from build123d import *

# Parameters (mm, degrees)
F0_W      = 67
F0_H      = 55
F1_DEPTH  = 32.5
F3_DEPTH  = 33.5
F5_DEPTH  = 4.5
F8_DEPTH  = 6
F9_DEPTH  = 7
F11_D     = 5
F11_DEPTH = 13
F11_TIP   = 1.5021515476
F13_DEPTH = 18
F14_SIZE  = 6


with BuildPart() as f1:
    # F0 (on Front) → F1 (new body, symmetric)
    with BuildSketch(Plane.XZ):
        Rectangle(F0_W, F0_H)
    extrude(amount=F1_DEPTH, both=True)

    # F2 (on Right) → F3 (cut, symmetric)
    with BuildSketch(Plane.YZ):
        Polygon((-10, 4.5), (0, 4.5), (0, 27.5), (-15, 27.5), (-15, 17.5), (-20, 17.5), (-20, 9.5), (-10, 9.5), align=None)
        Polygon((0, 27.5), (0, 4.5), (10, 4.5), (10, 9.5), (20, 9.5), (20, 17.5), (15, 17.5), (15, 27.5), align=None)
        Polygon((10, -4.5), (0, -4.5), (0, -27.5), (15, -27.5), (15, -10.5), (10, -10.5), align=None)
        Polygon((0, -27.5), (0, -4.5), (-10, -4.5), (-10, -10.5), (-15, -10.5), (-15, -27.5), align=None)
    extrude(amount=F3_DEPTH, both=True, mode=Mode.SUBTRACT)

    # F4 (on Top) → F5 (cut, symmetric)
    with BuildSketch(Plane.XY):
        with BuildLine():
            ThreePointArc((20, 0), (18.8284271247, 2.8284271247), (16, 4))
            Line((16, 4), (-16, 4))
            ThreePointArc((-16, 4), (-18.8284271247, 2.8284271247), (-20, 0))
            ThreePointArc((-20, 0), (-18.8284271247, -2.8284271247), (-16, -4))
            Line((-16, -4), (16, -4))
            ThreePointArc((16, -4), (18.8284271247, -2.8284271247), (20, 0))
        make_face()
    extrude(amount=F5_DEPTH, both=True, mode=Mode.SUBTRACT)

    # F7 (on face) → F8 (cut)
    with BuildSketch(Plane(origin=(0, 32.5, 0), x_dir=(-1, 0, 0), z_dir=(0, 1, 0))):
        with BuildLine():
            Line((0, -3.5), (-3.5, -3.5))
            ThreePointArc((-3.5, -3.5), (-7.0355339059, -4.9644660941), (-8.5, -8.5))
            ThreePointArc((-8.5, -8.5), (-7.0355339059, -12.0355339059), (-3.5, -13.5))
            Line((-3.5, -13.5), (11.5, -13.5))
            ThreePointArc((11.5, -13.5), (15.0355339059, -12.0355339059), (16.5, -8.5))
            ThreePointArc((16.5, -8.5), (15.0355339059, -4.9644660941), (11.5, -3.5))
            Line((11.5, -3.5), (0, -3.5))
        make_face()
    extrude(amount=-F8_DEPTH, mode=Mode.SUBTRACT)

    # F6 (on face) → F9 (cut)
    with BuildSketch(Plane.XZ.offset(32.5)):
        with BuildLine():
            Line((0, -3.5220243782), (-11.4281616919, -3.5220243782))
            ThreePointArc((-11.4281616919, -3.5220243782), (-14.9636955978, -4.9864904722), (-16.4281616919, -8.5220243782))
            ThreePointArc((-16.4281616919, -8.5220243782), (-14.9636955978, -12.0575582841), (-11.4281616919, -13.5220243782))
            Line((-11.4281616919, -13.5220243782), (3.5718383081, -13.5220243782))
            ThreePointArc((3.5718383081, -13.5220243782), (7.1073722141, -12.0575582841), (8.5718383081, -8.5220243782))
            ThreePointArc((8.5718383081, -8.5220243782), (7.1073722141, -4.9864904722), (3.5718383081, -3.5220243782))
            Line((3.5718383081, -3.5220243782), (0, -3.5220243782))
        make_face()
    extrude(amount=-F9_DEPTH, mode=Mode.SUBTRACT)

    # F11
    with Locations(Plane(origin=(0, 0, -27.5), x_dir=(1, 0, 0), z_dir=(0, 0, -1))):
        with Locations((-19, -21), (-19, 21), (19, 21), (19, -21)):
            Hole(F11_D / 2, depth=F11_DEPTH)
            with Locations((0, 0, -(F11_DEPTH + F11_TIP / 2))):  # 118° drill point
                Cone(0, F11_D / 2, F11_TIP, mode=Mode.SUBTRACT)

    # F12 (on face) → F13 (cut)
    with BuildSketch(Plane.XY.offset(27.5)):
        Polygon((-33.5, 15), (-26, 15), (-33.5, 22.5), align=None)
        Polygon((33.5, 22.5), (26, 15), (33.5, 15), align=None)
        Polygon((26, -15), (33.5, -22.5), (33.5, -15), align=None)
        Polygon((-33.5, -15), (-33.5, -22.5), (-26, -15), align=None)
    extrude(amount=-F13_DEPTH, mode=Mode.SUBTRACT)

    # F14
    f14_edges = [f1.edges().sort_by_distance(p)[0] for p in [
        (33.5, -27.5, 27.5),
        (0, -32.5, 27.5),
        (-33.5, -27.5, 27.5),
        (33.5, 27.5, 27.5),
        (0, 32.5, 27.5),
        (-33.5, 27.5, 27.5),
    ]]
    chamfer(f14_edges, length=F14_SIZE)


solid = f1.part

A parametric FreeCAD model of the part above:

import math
import FreeCAD as App
import Part
import Sketcher
from FreeCAD import Vector
Q = App.Units.Quantity


def edges_at(feature, points):
    """Names of the edges that pass closest to the given points."""
    edges = feature.Shape.Edges
    near = lambda p: min(range(len(edges)), key=lambda i: edges[i].distToShape(Part.Vertex(*p))[0])
    return sorted({f"Edge{near(p) + 1}" for p in points})

doc = App.newDocument("Part")
params = doc.addObject("Spreadsheet::Sheet", "Params")
for row, (alias, value) in enumerate([
    ("sketch1_width", "67 mm"),
    ("sketch1_height", "55 mm"),
    ("pad1_length", "65 mm"),
    ("sketch2_width", "20 mm"),
    ("sketch2_width2", "10 mm"),
    ("sketch2_height", "8 mm"),
    ("sketch2_height2", "6 mm"),
    ("pocket1_length", "67 mm"),
    ("sketch3_radius", "4 mm"),
    ("sketch3_width", "32 mm"),
    ("pocket2_length", "9 mm"),
    ("sketch4_radius", "5 mm"),
    ("sketch4_width", "15 mm"),
    ("pocket3_length", "6 mm"),
    ("sketch5_radius", "5 mm"),
    ("sketch5_width", "15 mm"),
    ("pocket4_length", "7 mm"),
    ("sketch6_diameter", "5 mm"),
    ("hole_diameter", "5 mm"),
    ("hole_depth", "13 mm"),
    ("sketch7_width", "7.5 mm"),
    ("pocket5_length", "18 mm"),
    ("chamfer_size", "6 mm"),
], start=1):
    params.set(f"A{row}", alias)
    params.set(f"B{row}", "=" + value)
    params.setAlias(f"B{row}", alias)

body = doc.addObject("PartDesign::Body", "Body")

sketch1 = body.newObject("Sketcher::SketchObject", "Sketch")
sketch1.AttachmentSupport = (doc.getObject("XZ_Plane"), [""])
sketch1.MapMode = "FlatFace"
sketch1.addGeometry([
    Part.LineSegment(Vector(-33.5, 27.5, 0), Vector(-33.5, -27.5, 0)),
    Part.LineSegment(Vector(-33.5, -27.5, 0), Vector(33.5, -27.5, 0)),
    Part.LineSegment(Vector(33.5, -27.5, 0), Vector(33.5, 27.5, 0)),
    Part.LineSegment(Vector(33.5, 27.5, 0), Vector(-33.5, 27.5, 0)),
], False)
sketch1.addConstraint([
    Sketcher.Constraint("Coincident", 0, 2, 1, 1),
    Sketcher.Constraint("Coincident", 1, 2, 2, 1),
    Sketcher.Constraint("Coincident", 2, 2, 3, 1),
    Sketcher.Constraint("Coincident", 3, 2, 0, 1),
    Sketcher.Constraint("Vertical", 0),
    Sketcher.Constraint("Horizontal", 1),
    Sketcher.Constraint("Vertical", 2),
    Sketcher.Constraint("Horizontal", 3),
    Sketcher.Constraint("Symmetric", 0, 2, 2, 2, -1, 1),
    Sketcher.Constraint("DistanceX", 1, 1, 1, 2, Q("67 mm")),
    Sketcher.Constraint("DistanceY", 0, 2, 0, 1, Q("55 mm")),
])
sketch1.setExpression("Constraints[9]", "Params.sketch1_width")
sketch1.setExpression("Constraints[10]", "Params.sketch1_height")
pad1 = body.newObject("PartDesign::Pad", "Pad")
pad1.Profile = sketch1
pad1.setExpression("Length", "Params.pad1_length")
pad1.Midplane = True

sketch2 = body.newObject("Sketcher::SketchObject", "Sketch001")
sketch2.AttachmentSupport = (doc.getObject("YZ_Plane"), [""])
sketch2.MapMode = "FlatFace"
sketch2.addGeometry([
    Part.LineSegment(Vector(-10, 4.5, 0), Vector(10, 4.5, 0)),
    Part.LineSegment(Vector(10, 4.5, 0), Vector(10, 9.5, 0)),
    Part.LineSegment(Vector(10, 9.5, 0), Vector(20, 9.5, 0)),
    Part.LineSegment(Vector(20, 9.5, 0), Vector(20, 17.5, 0)),
    Part.LineSegment(Vector(20, 17.5, 0), Vector(15, 17.5, 0)),
    Part.LineSegment(Vector(15, 17.5, 0), Vector(15, 27.5, 0)),
    Part.LineSegment(Vector(15, 27.5, 0), Vector(-15, 27.5, 0)),
    Part.LineSegment(Vector(-15, 27.5, 0), Vector(-15, 17.5, 0)),
    Part.LineSegment(Vector(-15, 17.5, 0), Vector(-20, 17.5, 0)),
    Part.LineSegment(Vector(-20, 17.5, 0), Vector(-20, 9.5, 0)),
    Part.LineSegment(Vector(-20, 9.5, 0), Vector(-10, 9.5, 0)),
    Part.LineSegment(Vector(-10, 9.5, 0), Vector(-10, 4.5, 0)),
    Part.LineSegment(Vector(10, -4.5, 0), Vector(-10, -4.5, 0)),
    Part.LineSegment(Vector(-10, -4.5, 0), Vector(-10, -10.5, 0)),
    Part.LineSegment(Vector(-10, -10.5, 0), Vector(-15, -10.5, 0)),
    Part.LineSegment(Vector(-15, -10.5, 0), Vector(-15, -27.5, 0)),
    Part.LineSegment(Vector(-15, -27.5, 0), Vector(15, -27.5, 0)),
    Part.LineSegment(Vector(15, -27.5, 0), Vector(15, -10.5, 0)),
    Part.LineSegment(Vector(15, -10.5, 0), Vector(10, -10.5, 0)),
    Part.LineSegment(Vector(10, -10.5, 0), Vector(10, -4.5, 0)),
], False)
sketch2.addConstraint([
    Sketcher.Constraint("Coincident", 0, 2, 1, 1),
    Sketcher.Constraint("Coincident", 1, 2, 2, 1),
    Sketcher.Constraint("Coincident", 2, 2, 3, 1),
    Sketcher.Constraint("Coincident", 3, 2, 4, 1),
    Sketcher.Constraint("Coincident", 4, 2, 5, 1),
    Sketcher.Constraint("Coincident", 5, 2, 6, 1),
    Sketcher.Constraint("Coincident", 6, 2, 7, 1),
    Sketcher.Constraint("Coincident", 7, 2, 8, 1),
    Sketcher.Constraint("Coincident", 8, 2, 9, 1),
    Sketcher.Constraint("Coincident", 9, 2, 10, 1),
    Sketcher.Constraint("Coincident", 10, 2, 11, 1),
    Sketcher.Constraint("Coincident", 11, 2, 0, 1),
    Sketcher.Constraint("Coincident", 12, 2, 13, 1),
    Sketcher.Constraint("Coincident", 13, 2, 14, 1),
    Sketcher.Constraint("Coincident", 14, 2, 15, 1),
    Sketcher.Constraint("Coincident", 15, 2, 16, 1),
    Sketcher.Constraint("Coincident", 16, 2, 17, 1),
    Sketcher.Constraint("Coincident", 17, 2, 18, 1),
    Sketcher.Constraint("Coincident", 18, 2, 19, 1),
    Sketcher.Constraint("Coincident", 19, 2, 12, 1),
    Sketcher.Constraint("Horizontal", 0),
    Sketcher.Constraint("Vertical", 1),
    Sketcher.Constraint("Horizontal", 2),
    Sketcher.Constraint("Vertical", 3),
    Sketcher.Constraint("Horizontal", 4),
    Sketcher.Constraint("Vertical", 5),
    Sketcher.Constraint("Horizontal", 6),
    Sketcher.Constraint("Vertical", 7),
    Sketcher.Constraint("Horizontal", 8),
    Sketcher.Constraint("Vertical", 9),
    Sketcher.Constraint("Horizontal", 10),
    Sketcher.Constraint("Vertical", 11),
    Sketcher.Constraint("Horizontal", 12),
    Sketcher.Constraint("Vertical", 13),
    Sketcher.Constraint("Horizontal", 14),
    Sketcher.Constraint("Vertical", 15),
    Sketcher.Constraint("Horizontal", 16),
    Sketcher.Constraint("Vertical", 17),
    Sketcher.Constraint("Horizontal", 18),
    Sketcher.Constraint("Vertical", 19),
    Sketcher.Constraint("Symmetric", 0, 2, 12, 2, -1, 1),
    Sketcher.Constraint("Symmetric", 5, 2, 15, 2, -1, 1),
    Sketcher.Constraint("Symmetric", 4, 2, 7, 2, -2),
    Sketcher.Constraint("Symmetric", 2, 2, 9, 2, -2),
    Sketcher.Constraint("Symmetric", 14, 2, 17, 2, -2),
    Sketcher.Constraint("Vertical", 11, 2, 12, 2),
    Sketcher.Constraint("Vertical", 1, 2, 18, 2),
    Sketcher.Constraint("Equal", 8, 14),
    Sketcher.Constraint("Equal", 18, 1),
    Sketcher.Constraint("Equal", 10, 5),
    Sketcher.Constraint("DistanceX", 0, 1, 0, 2, Q("20 mm")),
    Sketcher.Constraint("DistanceX", 2, 1, 2, 2, Q("10 mm")),
    Sketcher.Constraint("DistanceY", 3, 1, 3, 2, Q("8 mm")),
    Sketcher.Constraint("DistanceY", 13, 2, 13, 1, Q("6 mm")),
    Sketcher.Constraint("DistanceY", 12, 2, 11, 2, Q("9 mm")),
])
sketch2.setExpression("Constraints[50]", "Params.sketch2_width")
sketch2.setExpression("Constraints[51]", "Params.sketch2_width2")
sketch2.setExpression("Constraints[52]", "Params.sketch2_height")
sketch2.setExpression("Constraints[53]", "Params.sketch2_height2")
pocket1 = body.newObject("PartDesign::Pocket", "Pocket")
pocket1.Profile = sketch2
pocket1.setExpression("Length", "Params.pocket1_length")
pocket1.Midplane = True

sketch3 = body.newObject("Sketcher::SketchObject", "Sketch002")
sketch3.AttachmentSupport = (doc.getObject("XY_Plane"), [""])
sketch3.MapMode = "FlatFace"
sketch3.addGeometry([
    Part.ArcOfCircle(Part.Circle(Vector(16, 0, 0), Vector(0, 0, 1), 4), math.radians(0), math.radians(90)),
    Part.LineSegment(Vector(16, 4, 0), Vector(-16, 4, 0)),
    Part.ArcOfCircle(Part.Circle(Vector(-16, 0, 0), Vector(0, 0, 1), 4), math.radians(90), math.radians(180)),
    Part.ArcOfCircle(Part.Circle(Vector(-16, 0, 0), Vector(0, 0, 1), 4), math.radians(180), math.radians(270)),
    Part.LineSegment(Vector(-16, -4, 0), Vector(16, -4, 0)),
    Part.ArcOfCircle(Part.Circle(Vector(16, 0, 0), Vector(0, 0, 1), 4), math.radians(-90), math.radians(0)),
], False)
sketch3.addConstraint([
    Sketcher.Constraint("Tangent", 0, 2, 1, 1),
    Sketcher.Constraint("Tangent", 1, 2, 2, 1),
    Sketcher.Constraint("Tangent", 2, 2, 3, 1),
    Sketcher.Constraint("Tangent", 3, 2, 4, 1),
    Sketcher.Constraint("Tangent", 4, 2, 5, 1),
    Sketcher.Constraint("Tangent", 5, 2, 0, 1),
    Sketcher.Constraint("Horizontal", 1),
    Sketcher.Constraint("Horizontal", 4),
    Sketcher.Constraint("Equal", 0, 2),
    Sketcher.Constraint("Equal", 2, 3),
    Sketcher.Constraint("Symmetric", 0, 3, 2, 3, -1, 1),
    Sketcher.Constraint("PointOnObject", 2, 2, -1),
    Sketcher.Constraint("PointOnObject", 5, 2, -1),
    Sketcher.Constraint("Radius", 0, Q("4 mm")),
    Sketcher.Constraint("DistanceX", 1, 2, 1, 1, Q("32 mm")),
])
sketch3.setExpression("Constraints[13]", "Params.sketch3_radius")
sketch3.setExpression("Constraints[14]", "Params.sketch3_width")
pocket2 = body.newObject("PartDesign::Pocket", "Pocket001")
pocket2.Profile = sketch3
pocket2.setExpression("Length", "Params.pocket2_length")
pocket2.Midplane = True

sketch4 = body.newObject("Sketcher::SketchObject", "Sketch003")
sketch4.AttachmentSupport = (doc.getObject("XZ_Plane"), [""])
sketch4.MapMode = "FlatFace"
sketch4.AttachmentOffset = App.Placement(Vector(0, 0, -32.5), App.Rotation())
sketch4.addGeometry([
    Part.ArcOfCircle(Part.Circle(Vector(3.5, -8.5, 0), Vector(0, 0, 1), 5), math.radians(0), math.radians(90)),
    Part.ArcOfCircle(Part.Circle(Vector(3.5, -8.5, 0), Vector(0, 0, 1), 5), math.radians(-90), math.radians(0)),
    Part.LineSegment(Vector(3.5, -13.5, 0), Vector(-11.5, -13.5, 0)),
    Part.ArcOfCircle(Part.Circle(Vector(-11.5, -8.5, 0), Vector(0, 0, 1), 5), math.radians(180), math.radians(270)),
    Part.ArcOfCircle(Part.Circle(Vector(-11.5, -8.5, 0), Vector(0, 0, 1), 5), math.radians(90), math.radians(180)),
    Part.LineSegment(Vector(-11.5, -3.5, 0), Vector(3.5, -3.5, 0)),
], False)
sketch4.addConstraint([
    Sketcher.Constraint("Tangent", 0, 1, 1, 2),
    Sketcher.Constraint("Tangent", 1, 1, 2, 1),
    Sketcher.Constraint("Tangent", 2, 2, 3, 2),
    Sketcher.Constraint("Tangent", 3, 1, 4, 2),
    Sketcher.Constraint("Tangent", 4, 1, 5, 1),
    Sketcher.Constraint("Tangent", 5, 2, 0, 2),
    Sketcher.Constraint("Horizontal", 2),
    Sketcher.Constraint("Horizontal", 5),
    Sketcher.Constraint("Equal", 0, 1),
    Sketcher.Constraint("Equal", 1, 3),
    Sketcher.Constraint("Horizontal", 4, 3, 0, 1),
    Sketcher.Constraint("Horizontal", 0, 1, 3, 1),
    Sketcher.Constraint("Radius", 0, Q("5 mm")),
    Sketcher.Constraint("DistanceX", 2, 2, 2, 1, Q("15 mm")),
    Sketcher.Constraint("DistanceX", -1, 1, 0, 3, Q("3.5 mm")),
    Sketcher.Constraint("DistanceY", 0, 3, -1, 1, Q("8.5 mm")),
])
sketch4.setExpression("Constraints[12]", "Params.sketch4_radius")
sketch4.setExpression("Constraints[13]", "Params.sketch4_width")
pocket3 = body.newObject("PartDesign::Pocket", "Pocket002")
pocket3.Profile = sketch4
pocket3.setExpression("Length", "Params.pocket3_length")
pocket3.Reversed = True

sketch5 = body.newObject("Sketcher::SketchObject", "Sketch004")
sketch5.AttachmentSupport = (doc.getObject("XZ_Plane"), [""])
sketch5.MapMode = "FlatFace"
sketch5.AttachmentOffset = App.Placement(Vector(0, 0, 32.5), App.Rotation())
sketch5.addGeometry([
    Part.ArcOfCircle(Part.Circle(Vector(-11.428162, -8.522024, 0), Vector(0, 0, 1), 5), math.radians(90), math.radians(180)),
    Part.ArcOfCircle(Part.Circle(Vector(-11.428162, -8.522024, 0), Vector(0, 0, 1), 5), math.radians(180), math.radians(270)),
    Part.LineSegment(Vector(-11.428162, -13.522024, 0), Vector(3.571838, -13.522024, 0)),
    Part.ArcOfCircle(Part.Circle(Vector(3.571838, -8.522024, 0), Vector(0, 0, 1), 5), math.radians(-90), math.radians(0)),
    Part.ArcOfCircle(Part.Circle(Vector(3.571838, -8.522024, 0), Vector(0, 0, 1), 5), math.radians(0), math.radians(90)),
    Part.LineSegment(Vector(3.571838, -3.522024, 0), Vector(-11.428162, -3.522024, 0)),
], False)
sketch5.addConstraint([
    Sketcher.Constraint("Tangent", 0, 2, 1, 1),
    Sketcher.Constraint("Tangent", 1, 2, 2, 1),
    Sketcher.Constraint("Tangent", 2, 2, 3, 1),
    Sketcher.Constraint("Tangent", 3, 2, 4, 1),
    Sketcher.Constraint("Tangent", 4, 2, 5, 1),
    Sketcher.Constraint("Tangent", 5, 2, 0, 1),
    Sketcher.Constraint("Horizontal", 2),
    Sketcher.Constraint("Horizontal", 5),
    Sketcher.Constraint("Equal", 0, 1),
    Sketcher.Constraint("Equal", 1, 3),
    Sketcher.Constraint("Horizontal", 4, 3, 0, 2),
    Sketcher.Constraint("Horizontal", 0, 2, 3, 2),
    Sketcher.Constraint("Radius", 0, Q("5 mm")),
    Sketcher.Constraint("DistanceX", 2, 1, 2, 2, Q("15 mm")),
    Sketcher.Constraint("DistanceX", 0, 3, -1, 1, Q("11.428162 mm")),
    Sketcher.Constraint("DistanceY", 0, 3, -1, 1, Q("8.522024 mm")),
])
sketch5.setExpression("Constraints[12]", "Params.sketch5_radius")
sketch5.setExpression("Constraints[13]", "Params.sketch5_width")
pocket4 = body.newObject("PartDesign::Pocket", "Pocket003")
pocket4.Profile = sketch5
pocket4.setExpression("Length", "Params.pocket4_length")

sketch6 = body.newObject("Sketcher::SketchObject", "Sketch005")
sketch6.AttachmentSupport = (doc.getObject("XY_Plane"), [""])
sketch6.MapMode = "FlatFace"
sketch6.AttachmentOffset = App.Placement(Vector(0, 0, -27.5), App.Rotation())
sketch6.addGeometry([
    Part.Circle(Vector(-19, 21, 0), Vector(0, 0, 1), 2.5),
    Part.Circle(Vector(-19, -21, 0), Vector(0, 0, 1), 2.5),
    Part.Circle(Vector(19, -21, 0), Vector(0, 0, 1), 2.5),
    Part.Circle(Vector(19, 21, 0), Vector(0, 0, 1), 2.5),
], False)
sketch6.addConstraint([
    Sketcher.Constraint("Equal", 0, 1),
    Sketcher.Constraint("Equal", 1, 2),
    Sketcher.Constraint("Equal", 2, 3),
    Sketcher.Constraint("Symmetric", 0, 3, 2, 3, -1, 1),
    Sketcher.Constraint("Symmetric", 1, 3, 3, 3, -1, 1),
    Sketcher.Constraint("Symmetric", 1, 3, 2, 3, -2),
    Sketcher.Constraint("Diameter", 0, Q("5 mm")),
    Sketcher.Constraint("DistanceX", 0, 3, -1, 1, Q("19 mm")),
    Sketcher.Constraint("DistanceY", -1, 1, 0, 3, Q("21 mm")),
])
sketch6.setExpression("Constraints[6]", "Params.sketch6_diameter")
doc.recompute()
hole = body.newObject("PartDesign::Hole", "Hole")
hole.Profile = sketch6
hole.ThreadType = "None"
hole.setExpression("Diameter", "Params.hole_diameter")
hole.DepthType = "Dimension"
hole.setExpression("Depth", "Params.hole_depth")
hole.DrillPoint = "Angled"
hole.DrillPointAngle = 118
hole.Reversed = True

sketch7 = body.newObject("Sketcher::SketchObject", "Sketch006")
sketch7.AttachmentSupport = (doc.getObject("XY_Plane"), [""])
sketch7.MapMode = "FlatFace"
sketch7.AttachmentOffset = App.Placement(Vector(0, 0, 27.5), App.Rotation())
sketch7.addGeometry([
    Part.LineSegment(Vector(-33.5, 15, 0), Vector(-26, 15, 0)),
    Part.LineSegment(Vector(-26, 15, 0), Vector(-33.5, 22.5, 0)),
    Part.LineSegment(Vector(-33.5, 22.5, 0), Vector(-33.5, 15, 0)),
    Part.LineSegment(Vector(33.5, 22.5, 0), Vector(26, 15, 0)),
    Part.LineSegment(Vector(26, 15, 0), Vector(33.5, 15, 0)),
    Part.LineSegment(Vector(33.5, 15, 0), Vector(33.5, 22.5, 0)),
    Part.LineSegment(Vector(26, -15, 0), Vector(33.5, -22.5, 0)),
    Part.LineSegment(Vector(33.5, -22.5, 0), Vector(33.5, -15, 0)),
    Part.LineSegment(Vector(33.5, -15, 0), Vector(26, -15, 0)),
    Part.LineSegment(Vector(-33.5, -15, 0), Vector(-33.5, -22.5, 0)),
    Part.LineSegment(Vector(-33.5, -22.5, 0), Vector(-26, -15, 0)),
    Part.LineSegment(Vector(-26, -15, 0), Vector(-33.5, -15, 0)),
], False)
sketch7.addConstraint([
    Sketcher.Constraint("Coincident", 0, 2, 1, 1),
    Sketcher.Constraint("Coincident", 1, 2, 2, 1),
    Sketcher.Constraint("Coincident", 2, 2, 0, 1),
    Sketcher.Constraint("Coincident", 3, 2, 4, 1),
    Sketcher.Constraint("Coincident", 4, 2, 5, 1),
    Sketcher.Constraint("Coincident", 5, 2, 3, 1),
    Sketcher.Constraint("Coincident", 6, 2, 7, 1),
    Sketcher.Constraint("Coincident", 7, 2, 8, 1),
    Sketcher.Constraint("Coincident", 8, 2, 6, 1),
    Sketcher.Constraint("Coincident", 9, 2, 10, 1),
    Sketcher.Constraint("Coincident", 10, 2, 11, 1),
    Sketcher.Constraint("Coincident", 11, 2, 9, 1),
    Sketcher.Constraint("Horizontal", 0),
    Sketcher.Constraint("Vertical", 2),
    Sketcher.Constraint("Horizontal", 4),
    Sketcher.Constraint("Vertical", 5),
    Sketcher.Constraint("Vertical", 7),
    Sketcher.Constraint("Horizontal", 8),
    Sketcher.Constraint("Vertical", 9),
    Sketcher.Constraint("Horizontal", 11),
    Sketcher.Constraint("Symmetric", 1, 2, 6, 2, -1, 1),
    Sketcher.Constraint("Symmetric", 0, 2, 8, 2, -1, 1),
    Sketcher.Constraint("Symmetric", 5, 2, 9, 2, -1, 1),
    Sketcher.Constraint("Symmetric", 3, 2, 10, 2, -1, 1),
    Sketcher.Constraint("Symmetric", 0, 2, 3, 2, -2),
    Sketcher.Constraint("Symmetric", 1, 2, 5, 2, -2),
    Sketcher.Constraint("Perpendicular", 1, 3),
    Sketcher.Constraint("DistanceX", 0, 1, 0, 2, Q("7.5 mm")),
    Sketcher.Constraint("DistanceX", 0, 2, -1, 1, Q("26 mm")),
    Sketcher.Constraint("DistanceY", -1, 1, 0, 2, Q("15 mm")),
])
sketch7.setExpression("Constraints[27]", "Params.sketch7_width")
pocket5 = body.newObject("PartDesign::Pocket", "Pocket004")
pocket5.Profile = sketch7
pocket5.setExpression("Length", "Params.pocket5_length")
doc.recompute()

chamfer = body.newObject("PartDesign::Chamfer", "Chamfer")
chamfer.Base = (pocket5, edges_at(pocket5, [
    (33.5, -27.5, 27.5),
    (0, -32.5, 27.5),
    (-33.5, -27.5, 27.5),
    (33.5, 27.5, 27.5),
    (0, 32.5, 27.5),
    (-33.5, 27.5, 27.5),
]))
chamfer.setExpression("Size", "Params.chamfer_size")

doc.recompute()
